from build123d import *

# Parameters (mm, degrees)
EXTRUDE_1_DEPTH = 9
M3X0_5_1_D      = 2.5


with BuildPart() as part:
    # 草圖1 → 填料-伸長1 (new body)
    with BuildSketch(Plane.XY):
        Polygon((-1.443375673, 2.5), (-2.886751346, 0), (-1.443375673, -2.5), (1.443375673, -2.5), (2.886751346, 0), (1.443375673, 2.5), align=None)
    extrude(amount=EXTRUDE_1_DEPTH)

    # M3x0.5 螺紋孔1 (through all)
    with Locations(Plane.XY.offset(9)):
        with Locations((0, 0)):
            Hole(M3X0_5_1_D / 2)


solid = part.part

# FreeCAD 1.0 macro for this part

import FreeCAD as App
import Part
import Sketcher
Q = App.Units.Quantity


def add_polygon(sketch, points):
    """Adds a closed chain of lines whose ends are joined by coincident constraints."""
    first, n = sketch.GeometryCount, len(points)
    for a, b in zip(points, points[1:] + points[:1]):
        sketch.addGeometry(Part.LineSegment(App.Vector(*a, 0), App.Vector(*b, 0)), False)
    for i in range(n):
        sketch.addConstraint(Sketcher.Constraint("Coincident", first + i, 2, first + (i + 1) % n, 1))

doc = App.newDocument("Part")
params = doc.addObject("Spreadsheet::Sheet", "Params")
for row, (alias, value) in enumerate([
    ("pad1_length", "9 mm"),
    ("sketch2_diameter", "2.5 mm"),
    ("hole_diameter", "2.5 mm"),
], start=1):
    params.set(f"A{row}", alias)
    params.set(f"B{row}", "=" + value)
    params.setAlias(f"B{row}", alias)

body = doc.addObject("PartDesign::Body", "Body")

# Sketch on XY plane
sketch1 = body.newObject("Sketcher::SketchObject", "Sketch")
sketch1.AttachmentSupport = (doc.getObject("XY_Plane"), [""])
sketch1.MapMode = "FlatFace"
add_polygon(sketch1, [(-1.4, 2.5), (-2.9, 0), (-1.4, -2.5), (1.4, -2.5), (2.9, 0), (1.4, 2.5)])  # lines 0-5
sketch1.addConstraint([
    Sketcher.Constraint("Horizontal", 2),
    Sketcher.Constraint("Horizontal", 5),
    Sketcher.Constraint("Symmetric", 0, 2, 3, 2, -1, 1),
    Sketcher.Constraint("Symmetric", 1, 2, 4, 2, -1, 1),
    Sketcher.Constraint("PointOnObject", 0, 2, -1),
    Sketcher.Constraint("Parallel", 0, 3),
    Sketcher.Constraint("Vertical", 2, 2, 4, 2),
    Sketcher.Constraint("Angle", 0, Q("-120 deg")),
    Sketcher.Constraint("DistanceY", 2, 2, 4, 2, 5.0),
    Sketcher.Constraint("DistanceX", 2, 1, 2, 2, 2.886751),
])
pad1 = body.newObject("PartDesign::Pad", "Pad")
pad1.Profile = sketch1
pad1.setExpression("Length", "Params.pad1_length")

# Sketch on XY plane
sketch2 = body.newObject("Sketcher::SketchObject", "Sketch001")
sketch2.AttachmentSupport = (doc.getObject("XY_Plane"), [""])
sketch2.MapMode = "FlatFace"
sketch2.AttachmentOffset = App.Placement(App.Vector(0, 0, 9), App.Rotation())
sketch2.addGeometry(Part.Circle(App.Vector(0, 0, 0), App.Vector(0, 0, 1), 1.2), False)
sketch2.addConstraint([
    Sketcher.Constraint("Coincident", 0, 3, -1, 1),
    Sketcher.Constraint("Diameter", 0, 2.5),
])
sketch2.setExpression("Constraints[1]", "Params.sketch2_diameter")
doc.recompute()
hole = body.newObject("PartDesign::Hole", "Hole")
hole.Profile = sketch2
hole.ThreadType = "None"
hole.setExpression("Diameter", "Params.hole_diameter")
hole.DepthType = "ThroughAll"

doc.recompute()
